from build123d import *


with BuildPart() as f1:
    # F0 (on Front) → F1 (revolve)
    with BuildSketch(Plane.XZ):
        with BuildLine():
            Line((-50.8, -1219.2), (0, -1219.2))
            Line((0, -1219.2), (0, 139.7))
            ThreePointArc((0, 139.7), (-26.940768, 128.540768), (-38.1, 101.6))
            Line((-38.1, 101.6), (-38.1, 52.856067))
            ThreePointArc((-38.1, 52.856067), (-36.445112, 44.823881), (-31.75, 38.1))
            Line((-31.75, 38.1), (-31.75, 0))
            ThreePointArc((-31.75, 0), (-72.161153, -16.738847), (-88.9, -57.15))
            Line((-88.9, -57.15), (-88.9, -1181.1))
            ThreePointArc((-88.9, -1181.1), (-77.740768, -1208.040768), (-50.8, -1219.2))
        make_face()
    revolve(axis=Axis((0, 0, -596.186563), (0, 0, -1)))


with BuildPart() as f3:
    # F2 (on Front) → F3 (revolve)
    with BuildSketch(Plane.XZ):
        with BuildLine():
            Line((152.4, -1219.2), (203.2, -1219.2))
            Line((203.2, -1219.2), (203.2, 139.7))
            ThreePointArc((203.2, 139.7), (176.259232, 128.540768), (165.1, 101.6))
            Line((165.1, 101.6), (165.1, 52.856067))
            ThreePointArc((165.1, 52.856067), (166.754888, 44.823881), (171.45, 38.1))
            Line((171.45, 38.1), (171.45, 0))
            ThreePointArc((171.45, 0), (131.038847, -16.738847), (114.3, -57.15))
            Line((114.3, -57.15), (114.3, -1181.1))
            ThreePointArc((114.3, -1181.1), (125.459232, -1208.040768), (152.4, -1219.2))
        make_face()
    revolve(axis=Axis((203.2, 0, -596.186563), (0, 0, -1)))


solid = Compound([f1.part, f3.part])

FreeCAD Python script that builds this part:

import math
import FreeCAD as App
import Part
import Sketcher

V = App.Vector
Q = App.Units.Quantity

doc = App.newDocument("Part")
params = doc.addObject("Spreadsheet::Sheet", "Params")
for row, (alias, value) in enumerate([
    ("sketch1_radius", "1.5 in"),
    ("sketch1_radius2", "0.7999999 in"),
    ("sketch1_width", "2 in"),
    ("sketch1_radius3", "2.2499999 in"),
    ("sketch1_height", "53.5 in"),
    ("revolution_angle", "360 deg"),
    ("sketch2_radius", "1.5 in"),
    ("sketch2_radius2", "0.7999999 in"),
    ("sketch2_width", "2 in"),
    ("sketch2_radius3", "2.2499999 in"),
    ("sketch2_height", "53.5 in"),
    ("revolution2_angle", "360 deg"),
], start=1):
    params.set(f"A{row}", alias)
    params.set(f"B{row}", "=" + value)
    params.setAlias(f"B{row}", alias)

body = doc.addObject("PartDesign::Body", "Body")

# Sketch on XZ plane
sketch1 = body.newObject("Sketcher::SketchObject", "Sketch")
sketch1.AttachmentSupport = (doc.getObject("XZ_Plane"), [""])
sketch1.MapMode = "FlatFace"
sketch1.addGeometry(Part.LineSegment(V(-51, -1219, 0), V(0, -1219, 0)), False)
sketch1.addGeometry(Part.LineSegment(V(0, -1219, 0), V(0, 140, 0)), False)
sketch1.addGeometry(Part.ArcOfCircle(Part.Circle(V(0, 102, 0), V(0, 0, 1), 38), math.radians(90), math.radians(180)), False)
sketch1.addGeometry(Part.LineSegment(V(-38, 102, 0), V(-38, 53, 0)), False)
sketch1.addGeometry(Part.ArcOfCircle(Part.Circle(V(-18, 53, 0), V(0, 0, 1), 20), math.radians(180), math.radians(227)), False)
sketch1.addGeometry(Part.LineSegment(V(-32, 38, 0), V(-32, 0, 0)), False)
sketch1.addGeometry(Part.ArcOfCircle(Part.Circle(V(-32, -57, 0), V(0, 0, 1), 57), math.radians(90), math.radians(180)), False)
sketch1.addGeometry(Part.LineSegment(V(-89, -57, 0), V(-89, -1181, 0)), False)
sketch1.addGeometry(Part.ArcOfCircle(Part.Circle(V(-51, -1181, 0), V(0, 0, 1), 38), math.radians(-180), math.radians(-90)), False)
sketch1.addConstraint(Sketcher.Constraint("Coincident", 0, 2, 1, 1))
sketch1.addConstraint(Sketcher.Constraint("Coincident", 1, 2, 2, 1))
sketch1.addConstraint(Sketcher.Constraint("Tangent", 2, 2, 3, 1))
sketch1.addConstraint(Sketcher.Constraint("Tangent", 3, 2, 4, 1))
sketch1.addConstraint(Sketcher.Constraint("Coincident", 4, 2, 5, 1))
sketch1.addConstraint(Sketcher.Constraint("Coincident", 5, 2, 6, 1))
sketch1.addConstraint(Sketcher.Constraint("Tangent", 6, 2, 7, 1))
sketch1.addConstraint(Sketcher.Constraint("Tangent", 7, 2, 8, 1))
sketch1.addConstraint(Sketcher.Constraint("Tangent", 8, 2, 0, 1))
sketch1.addConstraint(Sketcher.Constraint("Horizontal", 0))
sketch1.addConstraint(Sketcher.Constraint("Vertical", 1))
sketch1.addConstraint(Sketcher.Constraint("Vertical", 3))
sketch1.addConstraint(Sketcher.Constraint("Vertical", 5))
sketch1.addConstraint(Sketcher.Constraint("Vertical", 7))
sketch1.addConstraint(Sketcher.Constraint("Equal", 2, 8))
sketch1.addConstraint(Sketcher.Constraint("PointOnObject", 2, 3, -2))
sketch1.addConstraint(Sketcher.Constraint("PointOnObject", 0, 2, -2))
sketch1.addConstraint(Sketcher.Constraint("PointOnObject", 5, 2, -1))
sketch1.addConstraint(Sketcher.Constraint("Vertical", 6, 3, 4, 2))
sketch1.addConstraint(Sketcher.Constraint("Radius", 2, Q("1.5 in")))
sketch1.addConstraint(Sketcher.Constraint("Radius", 4, Q("0.7999999 in")))
sketch1.addConstraint(Sketcher.Constraint("DistanceX", 0, 1, 0, 2, Q("2 in")))
sketch1.addConstraint(Sketcher.Constraint("Radius", 6, Q("2.2499999 in")))
sketch1.addConstraint(Sketcher.Constraint("DistanceY", 1, 1, 1, 2, Q("53.5 in")))
sketch1.addConstraint(Sketcher.Constraint("DistanceY", 5, 2, 5, 1, Q("1.5 in")))
sketch1.addConstraint(Sketcher.Constraint("DistanceY", -1, 1, 2, 3, Q("4 in")))
sketch1.setExpression("Constraints[19]", "Params.sketch1_radius")
sketch1.setExpression("Constraints[20]", "Params.sketch1_radius2")
sketch1.setExpression("Constraints[21]", "Params.sketch1_width")
sketch1.setExpression("Constraints[22]", "Params.sketch1_radius3")
sketch1.setExpression("Constraints[23]", "Params.sketch1_height")
revolution = body.newObject("PartDesign::Revolution", "Revolution")
revolution.Profile = sketch1
revolution.ReferenceAxis = (sketch1, ["V_Axis"])
revolution.setExpression("Angle", "Params.revolution_angle")
body2 = doc.addObject("PartDesign::Body", "Body001")

# Sketch on XZ plane
sketch2 = body2.newObject("Sketcher::SketchObject", "Sketch001")
sketch2.AttachmentSupport = (doc.getObject("XZ_Plane001"), [""])
sketch2.MapMode = "FlatFace"
sketch2.addGeometry(Part.LineSegment(V(152, -1219, 0), V(203, -1219, 0)), False)
sketch2.addGeometry(Part.LineSegment(V(203, -1219, 0), V(203, 140, 0)), False)
sketch2.addGeometry(Part.ArcOfCircle(Part.Circle(V(203, 102, 0), V(0, 0, 1), 38), math.radians(90), math.radians(180)), False)
sketch2.addGeometry(Part.LineSegment(V(165, 102, 0), V(165, 53, 0)), False)
sketch2.addGeometry(Part.ArcOfCircle(Part.Circle(V(185, 53, 0), V(0, 0, 1), 20), math.radians(180), math.radians(227)), False)
sketch2.addGeometry(Part.LineSegment(V(171, 38, 0), V(171, 0, 0)), False)
sketch2.addGeometry(Part.ArcOfCircle(Part.Circle(V(171, -57, 0), V(0, 0, 1), 57), math.radians(90), math.radians(180)), False)
sketch2.addGeometry(Part.LineSegment(V(114, -57, 0), V(114, -1181, 0)), False)
sketch2.addGeometry(Part.ArcOfCircle(Part.Circle(V(152, -1181, 0), V(0, 0, 1), 38), math.radians(-180), math.radians(-90)), False)
sketch2.addGeometry(Part.LineSegment(V(203, 140, 0), V(203, -1219, 0)), True)  # axis
sketch2.addConstraint(Sketcher.Constraint("Coincident", 0, 2, 1, 1))
sketch2.addConstraint(Sketcher.Constraint("Coincident", 1, 2, 2, 1))
sketch2.addConstraint(Sketcher.Constraint("Tangent", 2, 2, 3, 1))
sketch2.addConstraint(Sketcher.Constraint("Tangent", 3, 2, 4, 1))
sketch2.addConstraint(Sketcher.Constraint("Coincident", 4, 2, 5, 1))
sketch2.addConstraint(Sketcher.Constraint("Coincident", 5, 2, 6, 1))
sketch2.addConstraint(Sketcher.Constraint("Tangent", 6, 2, 7, 1))
sketch2.addConstraint(Sketcher.Constraint("Tangent", 7, 2, 8, 1))
sketch2.addConstraint(Sketcher.Constraint("Tangent", 8, 2, 0, 1))
sketch2.addConstraint(Sketcher.Constraint("Horizontal", 0))
sketch2.addConstraint(Sketcher.Constraint("Vertical", 1))
sketch2.addConstraint(Sketcher.Constraint("Vertical", 3))
sketch2.addConstraint(Sketcher.Constraint("Vertical", 5))
sketch2.addConstraint(Sketcher.Constraint("Vertical", 7))
sketch2.addConstraint(Sketcher.Constraint("Vertical", 9))
sketch2.addConstraint(Sketcher.Constraint("Coincident", 9, 1, 1, 2))
sketch2.addConstraint(Sketcher.Constraint("Equal", 2, 8))
sketch2.addConstraint(Sketcher.Constraint("PointOnObject", 5, 2, -1))
sketch2.addConstraint(Sketcher.Constraint("Horizontal", 8, 2, 9, 2))
sketch2.addConstraint(Sketcher.Constraint("Vertical", 2, 3, 0, 2))
sketch2.addConstraint(Sketcher.Constraint("Vertical", 6, 3, 4, 2))
sketch2.addConstraint(Sketcher.Constraint("Radius", 2, Q("1.5 in")))
sketch2.addConstraint(Sketcher.Constraint("Radius", 4, Q("0.7999999 in")))
sketch2.addConstraint(Sketcher.Constraint("DistanceX", 0, 1, 0, 2, Q("2 in")))
sketch2.addConstraint(Sketcher.Constraint("Radius", 6, Q("2.2499999 in")))
sketch2.addConstraint(Sketcher.Constraint("DistanceY", 1, 1, 1, 2, Q("53.5 in")))
sketch2.addConstraint(Sketcher.Constraint("DistanceY", 5, 2, 5, 1, Q("1.5 in")))
sketch2.addConstraint(Sketcher.Constraint("DistanceX", -1, 1, 2, 3, Q("8 in")))
sketch2.addConstraint(Sketcher.Constraint("DistanceY", -1, 1, 2, 3, Q("4 in")))
sketch2.setExpression("Constraints[21]", "Params.sketch2_radius")
sketch2.setExpression("Constraints[22]", "Params.sketch2_radius2")
sketch2.setExpression("Constraints[23]", "Params.sketch2_width")
sketch2.setExpression("Constraints[24]", "Params.sketch2_radius3")
sketch2.setExpression("Constraints[25]", "Params.sketch2_height")
revolution2 = body2.newObject("PartDesign::Revolution", "Revolution001")
revolution2.Profile = sketch2
revolution2.ReferenceAxis = (sketch2, ["Axis0"])
revolution2.setExpression("Angle", "Params.revolution2_angle")

doc.recompute()
